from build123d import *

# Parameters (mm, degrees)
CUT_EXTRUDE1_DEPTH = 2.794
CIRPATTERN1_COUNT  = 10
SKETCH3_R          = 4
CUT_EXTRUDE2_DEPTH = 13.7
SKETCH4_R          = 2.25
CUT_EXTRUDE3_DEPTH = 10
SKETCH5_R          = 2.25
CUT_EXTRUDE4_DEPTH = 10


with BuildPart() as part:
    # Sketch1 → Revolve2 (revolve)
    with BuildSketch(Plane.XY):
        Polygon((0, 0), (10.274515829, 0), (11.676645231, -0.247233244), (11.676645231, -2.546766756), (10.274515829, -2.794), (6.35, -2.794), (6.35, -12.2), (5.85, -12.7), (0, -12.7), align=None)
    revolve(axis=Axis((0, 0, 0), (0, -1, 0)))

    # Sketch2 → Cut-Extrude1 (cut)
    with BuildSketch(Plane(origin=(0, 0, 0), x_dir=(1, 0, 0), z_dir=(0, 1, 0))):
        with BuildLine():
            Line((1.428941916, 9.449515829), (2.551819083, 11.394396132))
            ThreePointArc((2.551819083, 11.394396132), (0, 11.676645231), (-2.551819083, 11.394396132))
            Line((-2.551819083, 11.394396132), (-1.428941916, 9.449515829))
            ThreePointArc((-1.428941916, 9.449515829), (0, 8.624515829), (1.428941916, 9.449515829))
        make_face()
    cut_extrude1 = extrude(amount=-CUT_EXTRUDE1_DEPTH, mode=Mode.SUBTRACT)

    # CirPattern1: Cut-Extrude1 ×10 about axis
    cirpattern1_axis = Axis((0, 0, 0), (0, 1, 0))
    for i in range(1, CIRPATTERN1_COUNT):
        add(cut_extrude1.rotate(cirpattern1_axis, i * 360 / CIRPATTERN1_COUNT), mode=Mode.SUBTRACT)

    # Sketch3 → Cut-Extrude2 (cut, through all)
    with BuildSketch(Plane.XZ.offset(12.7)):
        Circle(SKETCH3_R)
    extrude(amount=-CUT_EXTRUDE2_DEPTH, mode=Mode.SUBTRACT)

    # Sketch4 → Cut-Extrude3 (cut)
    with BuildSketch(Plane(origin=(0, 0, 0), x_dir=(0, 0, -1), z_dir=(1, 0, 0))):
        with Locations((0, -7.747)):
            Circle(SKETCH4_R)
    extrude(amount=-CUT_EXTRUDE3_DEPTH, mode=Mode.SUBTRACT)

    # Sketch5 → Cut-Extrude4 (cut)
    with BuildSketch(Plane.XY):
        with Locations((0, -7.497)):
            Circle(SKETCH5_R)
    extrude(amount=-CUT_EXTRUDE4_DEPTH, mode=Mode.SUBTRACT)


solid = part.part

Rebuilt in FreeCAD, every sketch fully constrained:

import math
import FreeCAD as App
import Part
import Sketcher
Q = App.Units.Quantity


def add_polygon(sketch, points):
    """Adds a closed chain of lines whose ends are joined by coincident constraints."""
    first, n = sketch.GeometryCount, len(points)
    for a, b in zip(points, points[1:] + points[:1]):
        sketch.addGeometry(Part.LineSegment(App.Vector(*a, 0), App.Vector(*b, 0)), False)
    for i in range(n):
        sketch.addConstraint(Sketcher.Constraint("Coincident", first + i, 2, first + (i + 1) % n, 1))

doc = App.newDocument("Part")
body = doc.addObject("PartDesign::Body", "Body")

# Sketch on XY plane
sketch1 = body.newObject("Sketcher::SketchObject", "Sketch")
sketch1.AttachmentSupport = (doc.getObject("XY_Plane"), [""])
sketch1.MapMode = "FlatFace"
add_polygon(sketch1, [(10.3, 0), (0, 0), (0, -12.7), (5.8, -12.7), (6.3, -12.2), (6.3, -2.8), (10.3, -2.8), (11.7, -2.5), (11.7, -0.2)])  # lines 0-8
sketch1.addConstraint([
    Sketcher.Constraint("Horizontal", 0),
    Sketcher.Constraint("Vertical", 1),
    Sketcher.Constraint("Horizontal", 2),
    Sketcher.Constraint("Vertical", 4),
    Sketcher.Constraint("Horizontal", 5),
    Sketcher.Constraint("Vertical", 7),
    Sketcher.Constraint("Coincident", 0, 2, -1, 1),
    Sketcher.Constraint("Vertical", 5, 2, 8, 2),
    Sketcher.Constraint("Equal", 6, 8),
    Sketcher.Constraint("Angle", 3, Q("45 deg")),
    Sketcher.Constraint("Angle", 6, Q("10 deg")),
    Sketcher.Constraint("DistanceY", 1, 2, 1, 1, 12.7),
    Sketcher.Constraint("DistanceX", 2, 1, 2, 2, 5.85),
    Sketcher.Constraint("DistanceY", 3, 2, -1, 1, 12.2),
    Sketcher.Constraint("DistanceY", 4, 1, 4, 2, 9.406),
    Sketcher.Constraint("Distance", 6, 1.42376),
    Sketcher.Constraint("DistanceX", 0, 2, 0, 1, 10.274516),
])
revolution = body.newObject("PartDesign::Revolution", "Revolution")
revolution.Profile = sketch1
revolution.ReferenceAxis = (sketch1, ["V_Axis"])
revolution.Angle = 360

# Sketch on XZ plane
sketch2 = body.newObject("Sketcher::SketchObject", "Sketch001")
sketch2.AttachmentSupport = (doc.getObject("XZ_Plane"), [""])
sketch2.MapMode = "FlatFace"
sketch2.addGeometry([
    Part.LineSegment(App.Vector(1.4, -9.4, 0), App.Vector(2.6, -11.4, 0)),
    Part.ArcOfCircle(Part.Circle(App.Vector(0, 0, 0), App.Vector(0, 0, 1), 11.7), math.radians(-103), math.radians(-77)),
    Part.LineSegment(App.Vector(-2.6, -11.4, 0), App.Vector(-1.4, -9.4, 0)),
    Part.ArcOfCircle(Part.Circle(App.Vector(0, -10.3, 0), App.Vector(0, 0, 1), 1.6), math.radians(30), math.radians(150)),
], False)
sketch2.addConstraint([
    Sketcher.Constraint("Coincident", 0, 2, 1, 2),
    Sketcher.Constraint("Coincident", 1, 1, 2, 1),
    Sketcher.Constraint("Tangent", 2, 2, 3, 2),
    Sketcher.Constraint("Tangent", 3, 1, 0, 1),
    Sketcher.Constraint("Coincident", 1, 3, -1, 1),
    Sketcher.Constraint("Symmetric", 2, 2, 3, 1, -2),
    Sketcher.Constraint("Angle", 0, Q("-60 deg")),
    Sketcher.Constraint("Radius", 3, 1.65),
    Sketcher.Constraint("Radius", 1, 11.676645),
    Sketcher.Constraint("DistanceX", -1, 1, 0, 2, 2.551819),
])
pocket1 = body.newObject("PartDesign::Pocket", "Pocket")
pocket1.Profile = sketch2
pocket1.Length = 2.794
pocket1.Reversed = True
doc.recompute()

polarpattern = body.newObject("PartDesign::PolarPattern", "PolarPattern")
polarpattern.Originals = [pocket1]
polarpattern.Axis = (doc.getObject("Y_Axis"), [""])
polarpattern.Angle = 360
polarpattern.Occurrences = 10
body.Tip = polarpattern

# Sketch on XZ plane
sketch3 = body.newObject("Sketcher::SketchObject", "Sketch002")
sketch3.AttachmentSupport = (doc.getObject("XZ_Plane"), [""])
sketch3.MapMode = "FlatFace"
sketch3.AttachmentOffset = App.Placement(App.Vector(0, 0, 12.7), App.Rotation())
sketch3.addGeometry(Part.Circle(App.Vector(0, 0, 0), App.Vector(0, 0, 1), 4), False)
sketch3.addConstraint([
    Sketcher.Constraint("Coincident", 0, 3, -1, 1),
    Sketcher.Constraint("Diameter", 0, 8.0),
])
pocket2 = body.newObject("PartDesign::Pocket", "Pocket001")
pocket2.Profile = sketch3
pocket2.Type = "ThroughAll"

# Sketch on YZ plane
sketch4 = body.newObject("Sketcher::SketchObject", "Sketch003")
sketch4.AttachmentSupport = (doc.getObject("YZ_Plane"), [""])
sketch4.MapMode = "FlatFace"
sketch4.addGeometry(Part.Circle(App.Vector(-7.7, 0, 0), App.Vector(0, 0, 1), 2.2), False)
sketch4.addConstraint([
    Sketcher.Constraint("PointOnObject", 0, 3, -1),
    Sketcher.Constraint("Diameter", 0, 4.5),
    Sketcher.Constraint("DistanceX", 0, 3, -1, 1, 7.747),
])
pocket3 = body.newObject("PartDesign::Pocket", "Pocket002")
pocket3.Profile = sketch4
pocket3.Length = 10

# Sketch on XY plane
sketch5 = body.newObject("Sketcher::SketchObject", "Sketch004")
sketch5.AttachmentSupport = (doc.getObject("XY_Plane"), [""])
sketch5.MapMode = "FlatFace"
sketch5.addGeometry(Part.Circle(App.Vector(0, -7.5, 0), App.Vector(0, 0, 1), 2.2), False)
sketch5.addConstraint([
    Sketcher.Constraint("PointOnObject", 0, 3, -2),
    Sketcher.Constraint("Diameter", 0, 4.5),
    Sketcher.Constraint("DistanceY", 0, 3, -1, 1, 7.497),
])
pocket4 = body.newObject("PartDesign::Pocket", "Pocket003")
pocket4.Profile = sketch5
pocket4.Length = 10

doc.recompute()
